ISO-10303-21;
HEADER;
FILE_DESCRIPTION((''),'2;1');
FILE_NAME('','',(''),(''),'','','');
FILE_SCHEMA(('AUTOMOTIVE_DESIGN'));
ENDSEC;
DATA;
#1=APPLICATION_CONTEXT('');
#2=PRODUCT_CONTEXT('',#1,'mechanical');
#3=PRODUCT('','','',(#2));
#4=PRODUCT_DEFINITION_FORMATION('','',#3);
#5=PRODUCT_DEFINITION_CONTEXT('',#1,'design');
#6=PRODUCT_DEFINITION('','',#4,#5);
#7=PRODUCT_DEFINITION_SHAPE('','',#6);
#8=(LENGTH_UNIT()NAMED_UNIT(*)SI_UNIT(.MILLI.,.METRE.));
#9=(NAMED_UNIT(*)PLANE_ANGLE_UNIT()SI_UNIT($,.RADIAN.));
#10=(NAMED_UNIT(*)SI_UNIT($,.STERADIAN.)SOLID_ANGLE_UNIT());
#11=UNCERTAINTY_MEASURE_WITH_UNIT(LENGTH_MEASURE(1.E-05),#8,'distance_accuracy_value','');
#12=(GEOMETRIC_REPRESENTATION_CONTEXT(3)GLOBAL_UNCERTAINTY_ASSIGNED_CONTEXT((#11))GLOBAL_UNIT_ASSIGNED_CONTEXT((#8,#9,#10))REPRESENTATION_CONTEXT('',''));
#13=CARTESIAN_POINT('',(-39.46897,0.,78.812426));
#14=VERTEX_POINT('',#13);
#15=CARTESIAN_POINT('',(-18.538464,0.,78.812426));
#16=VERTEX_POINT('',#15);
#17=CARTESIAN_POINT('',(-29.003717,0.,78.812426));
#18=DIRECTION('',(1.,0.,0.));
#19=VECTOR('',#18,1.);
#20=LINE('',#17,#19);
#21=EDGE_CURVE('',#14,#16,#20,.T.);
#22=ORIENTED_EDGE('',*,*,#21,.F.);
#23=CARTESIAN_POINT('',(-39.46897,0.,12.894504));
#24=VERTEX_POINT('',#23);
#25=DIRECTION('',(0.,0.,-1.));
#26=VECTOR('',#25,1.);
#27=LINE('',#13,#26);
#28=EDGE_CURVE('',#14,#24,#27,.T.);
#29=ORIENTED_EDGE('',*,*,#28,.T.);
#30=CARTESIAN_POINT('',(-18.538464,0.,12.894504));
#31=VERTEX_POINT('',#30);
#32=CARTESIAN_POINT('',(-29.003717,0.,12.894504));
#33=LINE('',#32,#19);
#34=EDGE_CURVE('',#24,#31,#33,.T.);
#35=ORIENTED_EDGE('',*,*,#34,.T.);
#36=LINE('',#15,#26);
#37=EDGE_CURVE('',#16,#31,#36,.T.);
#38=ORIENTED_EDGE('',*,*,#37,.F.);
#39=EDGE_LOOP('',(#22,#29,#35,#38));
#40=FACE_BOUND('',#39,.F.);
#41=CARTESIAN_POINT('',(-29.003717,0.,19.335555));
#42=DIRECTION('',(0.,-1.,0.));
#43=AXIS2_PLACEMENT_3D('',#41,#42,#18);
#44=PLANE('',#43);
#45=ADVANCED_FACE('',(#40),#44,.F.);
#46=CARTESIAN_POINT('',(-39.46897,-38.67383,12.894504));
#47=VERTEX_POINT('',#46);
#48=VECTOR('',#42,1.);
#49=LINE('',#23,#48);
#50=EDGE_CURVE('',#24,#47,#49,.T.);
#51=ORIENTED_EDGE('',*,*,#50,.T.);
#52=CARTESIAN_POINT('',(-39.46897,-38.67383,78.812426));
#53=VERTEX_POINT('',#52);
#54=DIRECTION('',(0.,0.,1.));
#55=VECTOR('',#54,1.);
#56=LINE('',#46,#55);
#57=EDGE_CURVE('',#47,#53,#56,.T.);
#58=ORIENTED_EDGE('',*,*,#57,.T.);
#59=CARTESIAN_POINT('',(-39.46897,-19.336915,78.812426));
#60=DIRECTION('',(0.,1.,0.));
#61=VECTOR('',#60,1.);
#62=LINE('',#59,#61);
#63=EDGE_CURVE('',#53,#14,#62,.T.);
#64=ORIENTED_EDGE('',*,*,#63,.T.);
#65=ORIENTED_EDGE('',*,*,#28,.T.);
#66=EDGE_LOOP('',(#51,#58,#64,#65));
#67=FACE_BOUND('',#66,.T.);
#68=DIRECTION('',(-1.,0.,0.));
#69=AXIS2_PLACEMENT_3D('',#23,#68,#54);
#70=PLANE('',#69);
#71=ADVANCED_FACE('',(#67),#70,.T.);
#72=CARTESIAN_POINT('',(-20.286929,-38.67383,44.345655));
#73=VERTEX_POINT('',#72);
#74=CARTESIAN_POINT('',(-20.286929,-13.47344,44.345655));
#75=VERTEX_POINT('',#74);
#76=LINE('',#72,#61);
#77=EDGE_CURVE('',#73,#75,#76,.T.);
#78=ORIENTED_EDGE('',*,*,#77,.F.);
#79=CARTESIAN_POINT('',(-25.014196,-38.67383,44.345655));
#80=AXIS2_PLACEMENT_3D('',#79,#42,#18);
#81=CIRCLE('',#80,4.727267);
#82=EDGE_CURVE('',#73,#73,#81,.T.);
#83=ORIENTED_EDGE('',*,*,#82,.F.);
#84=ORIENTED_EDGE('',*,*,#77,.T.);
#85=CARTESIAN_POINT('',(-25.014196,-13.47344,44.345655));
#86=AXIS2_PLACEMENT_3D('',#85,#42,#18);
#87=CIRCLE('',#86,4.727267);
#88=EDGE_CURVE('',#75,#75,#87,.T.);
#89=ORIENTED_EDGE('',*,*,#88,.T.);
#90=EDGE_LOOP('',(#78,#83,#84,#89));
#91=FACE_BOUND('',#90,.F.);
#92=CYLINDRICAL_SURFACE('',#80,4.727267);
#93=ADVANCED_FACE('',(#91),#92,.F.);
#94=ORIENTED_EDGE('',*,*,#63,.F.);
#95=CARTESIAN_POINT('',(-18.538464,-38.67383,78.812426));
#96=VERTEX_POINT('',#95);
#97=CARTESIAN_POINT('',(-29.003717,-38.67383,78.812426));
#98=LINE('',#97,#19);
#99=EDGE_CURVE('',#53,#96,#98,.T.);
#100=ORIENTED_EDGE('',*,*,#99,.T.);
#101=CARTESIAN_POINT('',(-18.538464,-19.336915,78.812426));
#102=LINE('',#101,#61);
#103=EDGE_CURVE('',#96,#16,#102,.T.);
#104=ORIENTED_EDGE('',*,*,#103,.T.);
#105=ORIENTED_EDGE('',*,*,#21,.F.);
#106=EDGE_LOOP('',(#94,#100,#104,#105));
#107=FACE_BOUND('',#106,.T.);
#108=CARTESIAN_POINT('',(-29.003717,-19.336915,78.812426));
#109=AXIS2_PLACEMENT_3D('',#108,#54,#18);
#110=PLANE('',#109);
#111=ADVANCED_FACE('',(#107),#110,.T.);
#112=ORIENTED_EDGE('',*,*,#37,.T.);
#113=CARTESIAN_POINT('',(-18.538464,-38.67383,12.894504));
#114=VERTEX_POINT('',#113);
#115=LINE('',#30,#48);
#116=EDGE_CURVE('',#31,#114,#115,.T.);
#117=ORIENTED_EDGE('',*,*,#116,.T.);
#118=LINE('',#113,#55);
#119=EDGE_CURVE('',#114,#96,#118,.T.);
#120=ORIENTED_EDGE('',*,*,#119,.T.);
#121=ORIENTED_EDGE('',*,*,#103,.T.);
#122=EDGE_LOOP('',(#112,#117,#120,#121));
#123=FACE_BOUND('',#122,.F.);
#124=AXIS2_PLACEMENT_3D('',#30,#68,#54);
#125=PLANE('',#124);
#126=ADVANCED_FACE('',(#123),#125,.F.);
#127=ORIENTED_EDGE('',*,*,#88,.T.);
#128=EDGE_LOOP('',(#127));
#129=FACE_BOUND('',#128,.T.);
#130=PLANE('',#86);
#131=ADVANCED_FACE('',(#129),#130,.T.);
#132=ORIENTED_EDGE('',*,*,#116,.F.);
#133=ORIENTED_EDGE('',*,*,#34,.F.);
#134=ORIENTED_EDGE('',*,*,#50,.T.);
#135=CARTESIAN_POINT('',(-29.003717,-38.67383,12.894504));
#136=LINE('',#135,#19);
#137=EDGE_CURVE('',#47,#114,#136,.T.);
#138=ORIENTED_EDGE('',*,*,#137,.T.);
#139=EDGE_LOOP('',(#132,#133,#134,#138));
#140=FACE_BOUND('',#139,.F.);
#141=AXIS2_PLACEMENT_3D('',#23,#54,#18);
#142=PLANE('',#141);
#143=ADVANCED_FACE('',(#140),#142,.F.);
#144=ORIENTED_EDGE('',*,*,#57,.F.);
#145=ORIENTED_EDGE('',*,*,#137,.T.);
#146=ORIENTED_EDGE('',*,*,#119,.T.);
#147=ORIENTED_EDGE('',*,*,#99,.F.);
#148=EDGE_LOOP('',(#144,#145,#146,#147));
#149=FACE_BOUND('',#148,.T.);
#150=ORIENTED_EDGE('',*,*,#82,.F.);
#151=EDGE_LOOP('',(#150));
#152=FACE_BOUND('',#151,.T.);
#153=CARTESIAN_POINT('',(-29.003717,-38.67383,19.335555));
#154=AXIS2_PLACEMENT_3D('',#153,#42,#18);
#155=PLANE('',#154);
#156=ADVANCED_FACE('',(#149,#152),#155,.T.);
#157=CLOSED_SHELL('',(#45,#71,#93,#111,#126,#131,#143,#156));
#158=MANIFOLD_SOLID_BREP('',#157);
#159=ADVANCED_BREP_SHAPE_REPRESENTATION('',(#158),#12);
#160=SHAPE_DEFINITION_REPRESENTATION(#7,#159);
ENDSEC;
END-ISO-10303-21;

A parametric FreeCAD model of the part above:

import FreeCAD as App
import Part
import Sketcher

V = App.Vector
Q = App.Units.Quantity


def add_polygon(sketch, points):
    """Adds a closed chain of lines whose ends are joined by coincident constraints."""
    first, n = sketch.GeometryCount, len(points)
    for a, b in zip(points, points[1:] + points[:1]):
        sketch.addGeometry(Part.LineSegment(App.Vector(*a, 0), App.Vector(*b, 0)), False)
    for i in range(n):
        sketch.addConstraint(Sketcher.Constraint("Coincident", first + i, 2, first + (i + 1) % n, 1))

doc = App.newDocument("Part")
body = doc.addObject("PartDesign::Body", "Body")

# Sketch on XZ plane
sketch1 = body.newObject("Sketcher::SketchObject", "Sketch")
sketch1.AttachmentSupport = (doc.getObject("XZ_Plane"), [""])
sketch1.MapMode = "FlatFace"
add_polygon(sketch1, [(-39, 26), (-39, 13), (-19, 13), (-19, 26)])  # lines 0-3
sketch1.addConstraint(Sketcher.Constraint("Vertical", 0))
sketch1.addConstraint(Sketcher.Constraint("Horizontal", 1))
sketch1.addConstraint(Sketcher.Constraint("Vertical", 2))
sketch1.addConstraint(Sketcher.Constraint("Horizontal", 3))
sketch1.addConstraint(Sketcher.Constraint("DistanceX", 1, 1, 1, 2, Q("20.930506 mm")))
sketch1.addConstraint(Sketcher.Constraint("DistanceY", 0, 2, 0, 1, Q("12.882103 mm")))
sketch1.addConstraint(Sketcher.Constraint("DistanceX", 0, 2, -1, 1, Q("39.46897 mm")))
sketch1.addConstraint(Sketcher.Constraint("DistanceY", -1, 1, 0, 2, Q("12.894504 mm")))
pad1 = body.newObject("PartDesign::Pad", "Pad")
pad1.Profile = sketch1
pad1.Length = 38.67383

# Sketch on XY plane
sketch2 = body.newObject("Sketcher::SketchObject", "Sketch001")
sketch2.AttachmentSupport = (doc.getObject("XY_Plane"), [""])
sketch2.MapMode = "FlatFace"
sketch2.AttachmentOffset = App.Placement(V(0, 0, 25.776606), App.Rotation())
add_polygon(sketch2, [(-39, 0), (-39, -39), (-19, -39), (-19, 0)])  # lines 0-3
sketch2.addConstraint(Sketcher.Constraint("Vertical", 0))
sketch2.addConstraint(Sketcher.Constraint("Horizontal", 1))
sketch2.addConstraint(Sketcher.Constraint("Vertical", 2))
sketch2.addConstraint(Sketcher.Constraint("Horizontal", 3))
sketch2.addConstraint(Sketcher.Constraint("PointOnObject", 2, 2, -1))
sketch2.addConstraint(Sketcher.Constraint("DistanceY", 0, 2, 0, 1, Q("38.67383 mm")))
sketch2.addConstraint(Sketcher.Constraint("DistanceX", 1, 1, 1, 2, Q("20.930506 mm")))
sketch2.addConstraint(Sketcher.Constraint("DistanceX", 0, 2, -1, 1, Q("39.46897 mm")))
pad2 = body.newObject("PartDesign::Pad", "Pad001")
pad2.Profile = sketch2
pad2.Length = 53.03582

# Sketch on XZ plane
sketch3 = body.newObject("Sketcher::SketchObject", "Sketch002")
sketch3.AttachmentSupport = (doc.getObject("XZ_Plane"), [""])
sketch3.MapMode = "FlatFace"
sketch3.AttachmentOffset = App.Placement(V(0, 0, 38.67383), App.Rotation())
sketch3.addGeometry(Part.Circle(V(-25, 44.3, 0), V(0, 0, 1), 4.7), False)
sketch3.addConstraint(Sketcher.Constraint("Diameter", 0, Q("9.454534 mm")))
sketch3.addConstraint(Sketcher.Constraint("DistanceX", 0, 3, -1, 1, Q("25.014196 mm")))
sketch3.addConstraint(Sketcher.Constraint("DistanceY", -1, 1, 0, 3, Q("44.345655 mm")))
pocket1 = body.newObject("PartDesign::Pocket", "Pocket")
pocket1.Profile = sketch3
pocket1.Length = 25.20039

doc.recompute()
